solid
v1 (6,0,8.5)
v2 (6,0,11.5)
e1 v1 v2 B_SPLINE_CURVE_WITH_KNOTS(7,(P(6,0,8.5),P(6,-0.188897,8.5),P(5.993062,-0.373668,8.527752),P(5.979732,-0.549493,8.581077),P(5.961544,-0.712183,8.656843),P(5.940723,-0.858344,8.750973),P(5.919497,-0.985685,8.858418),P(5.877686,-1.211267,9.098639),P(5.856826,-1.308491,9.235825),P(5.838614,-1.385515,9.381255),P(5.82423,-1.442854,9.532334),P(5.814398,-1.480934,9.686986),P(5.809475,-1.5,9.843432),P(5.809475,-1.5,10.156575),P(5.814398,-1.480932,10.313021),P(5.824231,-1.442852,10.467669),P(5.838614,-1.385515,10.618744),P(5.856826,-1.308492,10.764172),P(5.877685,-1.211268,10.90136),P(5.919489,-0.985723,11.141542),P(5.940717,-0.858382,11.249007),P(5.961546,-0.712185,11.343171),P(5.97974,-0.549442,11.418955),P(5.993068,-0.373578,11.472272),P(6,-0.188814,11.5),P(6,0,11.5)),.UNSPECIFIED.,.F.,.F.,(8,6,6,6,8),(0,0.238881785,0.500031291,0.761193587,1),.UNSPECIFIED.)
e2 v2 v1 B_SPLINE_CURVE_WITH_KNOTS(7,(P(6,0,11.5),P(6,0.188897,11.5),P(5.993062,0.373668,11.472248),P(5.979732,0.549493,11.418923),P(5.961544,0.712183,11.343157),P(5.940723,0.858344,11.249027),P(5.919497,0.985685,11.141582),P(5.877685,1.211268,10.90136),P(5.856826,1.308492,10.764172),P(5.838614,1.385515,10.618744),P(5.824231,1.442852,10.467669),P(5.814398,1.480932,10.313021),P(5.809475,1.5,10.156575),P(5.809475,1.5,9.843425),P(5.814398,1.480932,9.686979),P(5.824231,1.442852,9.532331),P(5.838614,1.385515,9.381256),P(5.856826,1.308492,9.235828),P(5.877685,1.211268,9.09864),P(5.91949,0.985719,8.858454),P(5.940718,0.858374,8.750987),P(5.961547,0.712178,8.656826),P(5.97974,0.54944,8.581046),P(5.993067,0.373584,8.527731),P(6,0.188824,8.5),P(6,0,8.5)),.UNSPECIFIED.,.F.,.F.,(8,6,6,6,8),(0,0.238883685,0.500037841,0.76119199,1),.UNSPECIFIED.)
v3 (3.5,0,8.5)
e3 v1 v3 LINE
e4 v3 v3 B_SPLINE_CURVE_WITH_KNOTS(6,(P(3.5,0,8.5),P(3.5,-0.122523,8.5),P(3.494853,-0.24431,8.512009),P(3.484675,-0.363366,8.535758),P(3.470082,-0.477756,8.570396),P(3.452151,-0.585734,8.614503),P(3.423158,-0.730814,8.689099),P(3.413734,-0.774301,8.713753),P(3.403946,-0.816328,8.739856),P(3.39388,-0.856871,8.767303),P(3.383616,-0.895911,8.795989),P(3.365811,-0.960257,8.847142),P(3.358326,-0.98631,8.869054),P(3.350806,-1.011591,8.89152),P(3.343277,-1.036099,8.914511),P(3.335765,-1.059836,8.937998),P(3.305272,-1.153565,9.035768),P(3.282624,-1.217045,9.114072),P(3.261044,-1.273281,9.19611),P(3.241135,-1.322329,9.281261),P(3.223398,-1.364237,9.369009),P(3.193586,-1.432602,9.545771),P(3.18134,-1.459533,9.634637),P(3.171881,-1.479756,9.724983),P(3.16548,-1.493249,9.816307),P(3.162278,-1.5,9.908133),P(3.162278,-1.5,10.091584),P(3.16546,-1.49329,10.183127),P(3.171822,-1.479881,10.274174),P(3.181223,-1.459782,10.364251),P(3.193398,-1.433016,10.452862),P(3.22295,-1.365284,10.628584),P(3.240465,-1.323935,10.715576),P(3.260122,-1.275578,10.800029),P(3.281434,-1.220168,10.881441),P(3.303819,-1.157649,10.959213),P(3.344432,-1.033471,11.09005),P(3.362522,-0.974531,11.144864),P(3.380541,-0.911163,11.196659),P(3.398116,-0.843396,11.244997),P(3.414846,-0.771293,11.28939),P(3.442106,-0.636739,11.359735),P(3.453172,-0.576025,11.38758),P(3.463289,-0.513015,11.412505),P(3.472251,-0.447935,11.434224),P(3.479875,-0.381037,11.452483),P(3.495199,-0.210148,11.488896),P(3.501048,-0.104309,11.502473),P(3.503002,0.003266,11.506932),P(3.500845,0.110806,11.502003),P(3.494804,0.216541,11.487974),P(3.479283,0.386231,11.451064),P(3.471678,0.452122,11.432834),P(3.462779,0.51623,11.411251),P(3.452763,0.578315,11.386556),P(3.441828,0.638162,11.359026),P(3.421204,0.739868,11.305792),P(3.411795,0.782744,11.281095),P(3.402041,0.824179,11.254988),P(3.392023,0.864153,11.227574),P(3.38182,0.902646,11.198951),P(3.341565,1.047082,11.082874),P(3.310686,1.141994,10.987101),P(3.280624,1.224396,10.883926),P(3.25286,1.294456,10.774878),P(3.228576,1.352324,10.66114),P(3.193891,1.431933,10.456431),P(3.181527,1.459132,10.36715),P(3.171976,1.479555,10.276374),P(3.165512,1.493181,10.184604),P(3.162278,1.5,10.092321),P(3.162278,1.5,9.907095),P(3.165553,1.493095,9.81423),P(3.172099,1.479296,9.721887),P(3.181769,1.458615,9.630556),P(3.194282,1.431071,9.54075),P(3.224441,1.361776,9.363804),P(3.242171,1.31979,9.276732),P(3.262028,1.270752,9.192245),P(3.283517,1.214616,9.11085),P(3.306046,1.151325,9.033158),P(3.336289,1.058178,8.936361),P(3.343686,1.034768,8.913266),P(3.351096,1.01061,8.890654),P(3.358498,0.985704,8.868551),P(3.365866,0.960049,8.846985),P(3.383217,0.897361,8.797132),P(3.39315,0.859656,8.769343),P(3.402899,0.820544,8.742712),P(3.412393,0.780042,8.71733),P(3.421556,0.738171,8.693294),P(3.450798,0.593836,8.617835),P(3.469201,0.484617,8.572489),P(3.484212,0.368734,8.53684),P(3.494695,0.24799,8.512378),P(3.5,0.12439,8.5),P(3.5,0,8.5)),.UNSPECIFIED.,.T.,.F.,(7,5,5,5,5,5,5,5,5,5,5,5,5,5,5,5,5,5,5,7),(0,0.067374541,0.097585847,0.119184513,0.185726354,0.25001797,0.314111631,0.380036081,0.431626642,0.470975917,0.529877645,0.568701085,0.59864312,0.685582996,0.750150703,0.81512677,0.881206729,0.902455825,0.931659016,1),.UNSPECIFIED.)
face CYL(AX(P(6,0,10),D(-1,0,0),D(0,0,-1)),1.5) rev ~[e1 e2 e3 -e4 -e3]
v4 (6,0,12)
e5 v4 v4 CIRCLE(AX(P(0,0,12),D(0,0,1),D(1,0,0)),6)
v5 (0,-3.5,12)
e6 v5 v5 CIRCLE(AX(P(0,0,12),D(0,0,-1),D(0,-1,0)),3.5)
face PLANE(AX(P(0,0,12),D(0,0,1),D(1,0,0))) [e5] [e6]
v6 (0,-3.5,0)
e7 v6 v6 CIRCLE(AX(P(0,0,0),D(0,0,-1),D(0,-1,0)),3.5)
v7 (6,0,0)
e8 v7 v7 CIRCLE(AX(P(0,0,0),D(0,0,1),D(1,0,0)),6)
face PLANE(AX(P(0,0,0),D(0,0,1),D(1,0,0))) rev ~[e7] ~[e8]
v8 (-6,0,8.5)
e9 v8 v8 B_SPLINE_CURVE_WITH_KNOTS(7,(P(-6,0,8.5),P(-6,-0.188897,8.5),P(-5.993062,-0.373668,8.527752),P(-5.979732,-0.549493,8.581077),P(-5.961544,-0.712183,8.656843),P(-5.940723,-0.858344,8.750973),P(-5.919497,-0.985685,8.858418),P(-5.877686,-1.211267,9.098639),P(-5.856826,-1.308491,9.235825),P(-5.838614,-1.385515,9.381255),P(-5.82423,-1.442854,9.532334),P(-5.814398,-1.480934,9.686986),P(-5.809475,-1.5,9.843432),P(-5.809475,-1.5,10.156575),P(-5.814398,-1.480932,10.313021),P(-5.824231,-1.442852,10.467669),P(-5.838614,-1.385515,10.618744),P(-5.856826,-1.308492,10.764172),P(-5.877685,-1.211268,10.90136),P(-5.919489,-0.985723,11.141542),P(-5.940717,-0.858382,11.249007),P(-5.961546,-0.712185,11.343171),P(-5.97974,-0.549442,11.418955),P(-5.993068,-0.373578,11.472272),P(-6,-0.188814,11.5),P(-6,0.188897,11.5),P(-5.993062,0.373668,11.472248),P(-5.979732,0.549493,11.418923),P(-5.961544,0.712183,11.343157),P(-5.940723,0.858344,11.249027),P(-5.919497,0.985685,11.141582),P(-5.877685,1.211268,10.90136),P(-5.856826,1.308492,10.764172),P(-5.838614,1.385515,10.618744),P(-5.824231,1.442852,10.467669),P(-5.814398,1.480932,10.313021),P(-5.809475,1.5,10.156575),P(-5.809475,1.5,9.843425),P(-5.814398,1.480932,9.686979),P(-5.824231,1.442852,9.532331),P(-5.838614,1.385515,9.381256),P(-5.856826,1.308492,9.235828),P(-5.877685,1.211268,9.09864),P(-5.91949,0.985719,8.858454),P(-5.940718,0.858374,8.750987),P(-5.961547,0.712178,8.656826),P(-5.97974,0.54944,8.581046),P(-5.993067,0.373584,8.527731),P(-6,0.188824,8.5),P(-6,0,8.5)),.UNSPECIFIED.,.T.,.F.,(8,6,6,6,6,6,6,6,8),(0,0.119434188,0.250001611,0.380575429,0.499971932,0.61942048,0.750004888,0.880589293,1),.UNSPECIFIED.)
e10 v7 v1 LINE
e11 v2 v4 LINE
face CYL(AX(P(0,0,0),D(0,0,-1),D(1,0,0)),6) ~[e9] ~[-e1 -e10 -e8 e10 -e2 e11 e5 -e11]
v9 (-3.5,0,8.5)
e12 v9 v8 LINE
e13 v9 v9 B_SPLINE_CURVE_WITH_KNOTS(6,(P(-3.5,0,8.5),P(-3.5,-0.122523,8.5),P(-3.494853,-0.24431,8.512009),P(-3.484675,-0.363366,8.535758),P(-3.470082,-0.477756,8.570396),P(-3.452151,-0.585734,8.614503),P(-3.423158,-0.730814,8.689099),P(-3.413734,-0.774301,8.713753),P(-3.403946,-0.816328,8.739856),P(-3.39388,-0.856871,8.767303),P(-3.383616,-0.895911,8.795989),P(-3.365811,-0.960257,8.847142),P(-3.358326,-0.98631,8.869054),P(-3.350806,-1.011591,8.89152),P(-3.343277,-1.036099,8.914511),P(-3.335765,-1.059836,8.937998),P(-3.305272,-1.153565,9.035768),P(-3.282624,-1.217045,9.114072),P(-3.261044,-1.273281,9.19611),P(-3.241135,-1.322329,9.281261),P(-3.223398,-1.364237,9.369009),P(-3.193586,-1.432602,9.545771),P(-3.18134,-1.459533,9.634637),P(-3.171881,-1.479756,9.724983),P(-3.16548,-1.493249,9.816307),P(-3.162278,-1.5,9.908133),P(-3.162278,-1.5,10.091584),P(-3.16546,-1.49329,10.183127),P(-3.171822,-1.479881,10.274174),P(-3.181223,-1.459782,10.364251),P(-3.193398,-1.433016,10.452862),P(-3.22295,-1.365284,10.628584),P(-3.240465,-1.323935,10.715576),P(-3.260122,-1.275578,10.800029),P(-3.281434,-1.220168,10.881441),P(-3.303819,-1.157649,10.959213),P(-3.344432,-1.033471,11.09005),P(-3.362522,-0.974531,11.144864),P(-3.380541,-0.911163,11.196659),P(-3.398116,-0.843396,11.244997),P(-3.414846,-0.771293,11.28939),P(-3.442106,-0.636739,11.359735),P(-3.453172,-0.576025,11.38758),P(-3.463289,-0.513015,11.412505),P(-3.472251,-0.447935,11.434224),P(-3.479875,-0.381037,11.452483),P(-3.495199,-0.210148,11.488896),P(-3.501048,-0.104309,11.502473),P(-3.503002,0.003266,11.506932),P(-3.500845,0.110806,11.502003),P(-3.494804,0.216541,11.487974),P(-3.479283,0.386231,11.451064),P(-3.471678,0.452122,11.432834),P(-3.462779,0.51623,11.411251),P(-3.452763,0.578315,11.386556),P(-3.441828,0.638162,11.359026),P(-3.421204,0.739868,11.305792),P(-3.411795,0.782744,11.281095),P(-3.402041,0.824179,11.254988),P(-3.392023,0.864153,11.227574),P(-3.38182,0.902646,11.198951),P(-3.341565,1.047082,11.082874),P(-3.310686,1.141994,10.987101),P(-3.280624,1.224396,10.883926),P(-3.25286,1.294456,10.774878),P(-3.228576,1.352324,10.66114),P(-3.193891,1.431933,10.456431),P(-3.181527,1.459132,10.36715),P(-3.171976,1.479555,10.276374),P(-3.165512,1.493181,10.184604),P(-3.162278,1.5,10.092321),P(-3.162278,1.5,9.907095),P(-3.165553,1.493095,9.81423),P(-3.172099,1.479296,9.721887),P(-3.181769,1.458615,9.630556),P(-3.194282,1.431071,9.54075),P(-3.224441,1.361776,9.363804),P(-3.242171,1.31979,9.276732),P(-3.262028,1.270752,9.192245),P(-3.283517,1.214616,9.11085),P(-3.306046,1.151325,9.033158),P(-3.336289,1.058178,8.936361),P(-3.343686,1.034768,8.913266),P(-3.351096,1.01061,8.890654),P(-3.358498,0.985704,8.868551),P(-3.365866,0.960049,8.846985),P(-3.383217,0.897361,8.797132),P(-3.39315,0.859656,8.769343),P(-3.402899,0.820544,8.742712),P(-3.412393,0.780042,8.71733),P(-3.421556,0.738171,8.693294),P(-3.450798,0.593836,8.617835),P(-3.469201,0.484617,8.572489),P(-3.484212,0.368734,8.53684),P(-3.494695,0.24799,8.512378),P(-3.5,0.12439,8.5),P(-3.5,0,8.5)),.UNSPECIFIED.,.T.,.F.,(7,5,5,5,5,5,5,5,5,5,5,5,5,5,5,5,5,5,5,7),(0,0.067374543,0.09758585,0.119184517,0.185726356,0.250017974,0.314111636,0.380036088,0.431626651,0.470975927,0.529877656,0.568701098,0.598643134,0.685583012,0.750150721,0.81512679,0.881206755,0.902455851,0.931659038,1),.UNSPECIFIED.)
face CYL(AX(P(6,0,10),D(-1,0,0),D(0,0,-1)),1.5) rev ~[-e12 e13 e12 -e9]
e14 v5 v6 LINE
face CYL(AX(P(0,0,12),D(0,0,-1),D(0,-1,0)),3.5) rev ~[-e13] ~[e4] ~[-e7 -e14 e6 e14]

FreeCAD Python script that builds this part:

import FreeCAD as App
import Part
import Sketcher
from FreeCAD import Vector
Q = App.Units.Quantity

doc = App.newDocument("Part")
params = doc.addObject("Spreadsheet::Sheet", "Params")
for row, (alias, value) in enumerate([
    ("sketch1_diameter", "12 mm"),
    ("pad1_length", "12 mm"),
    ("sketch2_diameter", "3 mm"),
    ("hole_diameter", "3 mm"),
    ("sketch3_diameter", "7 mm"),
    ("hole2_diameter", "7 mm"),
    ("hole2_depth", "12 mm"),
], start=1):
    params.set(f"A{row}", alias)
    params.set(f"B{row}", "=" + value)
    params.setAlias(f"B{row}", alias)

body = doc.addObject("PartDesign::Body", "Body")

# Sketch on XY plane
sketch1 = body.newObject("Sketcher::SketchObject", "Sketch")
sketch1.AttachmentSupport = (doc.getObject("XY_Plane"), [""])
sketch1.MapMode = "FlatFace"
sketch1.addGeometry(Part.Circle(Vector(0, 0, 0), Vector(0, 0, 1), 6), False)
sketch1.addConstraint([
    Sketcher.Constraint("Coincident", 0, 3, -1, 1),
    Sketcher.Constraint("Diameter", 0, Q("12 mm")),
])
sketch1.setExpression("Constraints[1]", "Params.sketch1_diameter")
pad1 = body.newObject("PartDesign::Pad", "Pad")
pad1.Profile = sketch1
pad1.setExpression("Length", "Params.pad1_length")

# Sketch on YZ plane
sketch2 = body.newObject("Sketcher::SketchObject", "Sketch001")
sketch2.AttachmentSupport = (doc.getObject("YZ_Plane"), [""])
sketch2.MapMode = "FlatFace"
sketch2.AttachmentOffset = App.Placement(Vector(0, 0, 6), App.Rotation())
sketch2.addGeometry(Part.Circle(Vector(0, 10, 0), Vector(0, 0, 1), 1.5), False)
sketch2.addConstraint([
    Sketcher.Constraint("PointOnObject", 0, 3, -2),
    Sketcher.Constraint("Diameter", 0, Q("3 mm")),
    Sketcher.Constraint("DistanceY", -1, 1, 0, 3, Q("10 mm")),
])
sketch2.setExpression("Constraints[1]", "Params.sketch2_diameter")
doc.recompute()
hole = body.newObject("PartDesign::Hole", "Hole")
hole.Profile = sketch2
hole.ThreadType = "None"
hole.setExpression("Diameter", "Params.hole_diameter")
hole.DepthType = "ThroughAll"

# Sketch on XY plane
sketch3 = body.newObject("Sketcher::SketchObject", "Sketch002")
sketch3.AttachmentSupport = (doc.getObject("XY_Plane"), [""])
sketch3.MapMode = "FlatFace"
sketch3.AttachmentOffset = App.Placement(Vector(0, 0, 12), App.Rotation())
sketch3.addGeometry(Part.Circle(Vector(0, 0, 0), Vector(0, 0, 1), 3.5), False)
sketch3.addConstraint([
    Sketcher.Constraint("Coincident", 0, 3, -1, 1),
    Sketcher.Constraint("Diameter", 0, Q("7 mm")),
])
sketch3.setExpression("Constraints[1]", "Params.sketch3_diameter")
doc.recompute()
hole2 = body.newObject("PartDesign::Hole", "Hole001")
hole2.Profile = sketch3
hole2.ThreadType = "None"
hole2.setExpression("Diameter", "Params.hole2_diameter")
hole2.DepthType = "Dimension"
hole2.setExpression("Depth", "Params.hole2_depth")
hole2.DrillPoint = "Flat"

doc.recompute()
